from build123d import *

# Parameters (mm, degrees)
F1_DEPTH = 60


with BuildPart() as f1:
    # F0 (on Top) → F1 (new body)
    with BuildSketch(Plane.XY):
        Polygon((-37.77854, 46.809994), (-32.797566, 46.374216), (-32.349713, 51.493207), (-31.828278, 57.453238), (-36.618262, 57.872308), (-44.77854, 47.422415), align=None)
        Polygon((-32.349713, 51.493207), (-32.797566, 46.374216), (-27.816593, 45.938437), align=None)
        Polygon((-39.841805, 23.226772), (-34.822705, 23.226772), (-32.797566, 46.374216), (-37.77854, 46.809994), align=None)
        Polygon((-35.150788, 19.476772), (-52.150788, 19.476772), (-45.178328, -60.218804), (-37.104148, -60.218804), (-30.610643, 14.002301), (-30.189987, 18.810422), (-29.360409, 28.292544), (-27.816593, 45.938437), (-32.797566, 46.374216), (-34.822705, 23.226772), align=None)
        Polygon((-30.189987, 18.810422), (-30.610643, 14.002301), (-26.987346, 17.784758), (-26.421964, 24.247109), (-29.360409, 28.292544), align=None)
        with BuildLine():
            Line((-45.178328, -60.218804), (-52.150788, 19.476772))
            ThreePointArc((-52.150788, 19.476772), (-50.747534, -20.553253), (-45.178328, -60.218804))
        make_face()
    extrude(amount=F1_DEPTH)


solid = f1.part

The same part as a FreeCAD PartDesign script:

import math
import FreeCAD as App
import Part
import Sketcher
from FreeCAD import Vector

doc = App.newDocument("Part")
body = doc.addObject("PartDesign::Body", "Body")

# Sketch on XY plane
sketch1 = doc.addObject("Sketcher::SketchObject", "Sketch")
body.addObject(sketch1)
sketch1.AttachmentSupport = (doc.XY_Plane, [""])
sketch1.MapMode = "FlatFace"
sketch1.addGeometry([
    Part.LineSegment(Vector(-27.816593, 45.938437, 0), Vector(-32.349713, 51.493207, 0)),  # 0
    Part.LineSegment(Vector(-32.349713, 51.493207, 0), Vector(-31.828278, 57.453238, 0)),  # 1
    Part.LineSegment(Vector(-31.828278, 57.453238, 0), Vector(-36.618262, 57.872308, 0)),  # 2
    Part.LineSegment(Vector(-36.618262, 57.872308, 0), Vector(-44.77854, 47.422415, 0)),  # 3
    Part.LineSegment(Vector(-44.77854, 47.422415, 0), Vector(-37.77854, 46.809994, 0)),  # 4
    Part.LineSegment(Vector(-37.77854, 46.809994, 0), Vector(-39.841805, 23.226772, 0)),  # 5
    Part.LineSegment(Vector(-39.841805, 23.226772, 0), Vector(-34.822705, 23.226772, 0)),  # 6
    Part.LineSegment(Vector(-34.822705, 23.226772, 0), Vector(-35.150788, 19.476772, 0)),  # 7
    Part.LineSegment(Vector(-35.150788, 19.476772, 0), Vector(-52.150788, 19.476772, 0)),  # 8
    Part.ArcOfCircle(Part.Circle(Vector(331.442415, 12.884038, 0), Vector(0, 0, 1), 383.649853), math.radians(179.015367), math.radians(190.984634)),  # 9
    Part.LineSegment(Vector(-45.178328, -60.218804, 0), Vector(-37.104148, -60.218804, 0)),  # 10
    Part.LineSegment(Vector(-37.104148, -60.218804, 0), Vector(-30.610643, 14.002301, 0)),  # 11
    Part.LineSegment(Vector(-30.610643, 14.002301, 0), Vector(-26.987346, 17.784758, 0)),  # 12
    Part.LineSegment(Vector(-26.987346, 17.784758, 0), Vector(-26.421964, 24.247109, 0)),  # 13
    Part.LineSegment(Vector(-26.421964, 24.247109, 0), Vector(-29.360409, 28.292544, 0)),  # 14
    Part.LineSegment(Vector(-29.360409, 28.292544, 0), Vector(-27.816593, 45.938437, 0)),  # 15
], False)
sketch1.addConstraint([
    Sketcher.Constraint("Coincident", 0, 2, 1, 1),
    Sketcher.Constraint("Coincident", 1, 2, 2, 1),
    Sketcher.Constraint("Coincident", 2, 2, 3, 1),
    Sketcher.Constraint("Coincident", 3, 2, 4, 1),
    Sketcher.Constraint("Coincident", 4, 2, 5, 1),
    Sketcher.Constraint("Coincident", 5, 2, 6, 1),
    Sketcher.Constraint("Coincident", 6, 2, 7, 1),
    Sketcher.Constraint("Coincident", 7, 2, 8, 1),
    Sketcher.Constraint("Coincident", 8, 2, 9, 1),
    Sketcher.Constraint("Coincident", 9, 2, 10, 1),
    Sketcher.Constraint("Coincident", 10, 2, 11, 1),
    Sketcher.Constraint("Coincident", 11, 2, 12, 1),
    Sketcher.Constraint("Coincident", 12, 2, 13, 1),
    Sketcher.Constraint("Coincident", 13, 2, 14, 1),
    Sketcher.Constraint("Coincident", 14, 2, 15, 1),
    Sketcher.Constraint("Coincident", 15, 2, 0, 1),
    Sketcher.Constraint("Horizontal", 6),
    Sketcher.Constraint("Horizontal", 8),
    Sketcher.Constraint("Horizontal", 10),
    Sketcher.Constraint("DistanceX", 8, 2, 8, 1, 17.0),
    Sketcher.Constraint("Distance", 14, 5.0),
    Sketcher.Constraint("DistanceX", 3, 2, 4, 2, 7.0),
    Sketcher.Constraint("DistanceY", 7, 2, 6, 2, 3.75),
    Sketcher.Constraint("DistanceX", 6, 1, 6, 2, 5.0191),
    Sketcher.Constraint("Radius", 9, 383.649853),
    Sketcher.Constraint("DistanceX", 10, 1, 10, 2, 8.07418),
    Sketcher.Constraint("DistanceY", -1, 1, 11, 2, 14.002301),
    Sketcher.Constraint("DistanceY", 9, 3, 1, 2, 44.5692),
    Sketcher.Constraint("DistanceY", 0, 2, 2, 2, 6.379101),
    Sketcher.Constraint("DistanceY", 9, 2, 4, 2, 107.028798),
    Sketcher.Constraint("DistanceY", 15, 2, 1, 2, 11.514801),
    Sketcher.Constraint("Distance", 2, 4.808281),
    Sketcher.Constraint("Distance", 4, 7.026739),
    Sketcher.Constraint("Distance", 12, 5.237868),
    Sketcher.Constraint("DistanceX", 1, 2, -1, 1, 31.828278),
    Sketcher.Constraint("DistanceX", 3, 2, -1, 1, 44.77854),
    Sketcher.Constraint("DistanceX", 9, 2, -1, 1, 45.178328),
    Sketcher.Constraint("DistanceY", -1, 1, 12, 2, 17.784758),
    Sketcher.Constraint("DistanceY", -1, 1, 13, 2, 24.247109),
    Sketcher.Constraint("DistanceX", 14, 2, -1, 1, 29.360409),
    Sketcher.Constraint("DistanceX", 0, 2, 9, 3, 363.792128),
    Sketcher.Constraint("DistanceY", 9, 3, 0, 2, 38.609169),
    Sketcher.Constraint("DistanceX", 2, 2, 0, 2, 4.268549),
    Sketcher.Constraint("DistanceX", 5, 2, 0, 2, 7.492092),
    Sketcher.Constraint("DistanceX", 10, 2, 7, 2, 1.95336),
    Sketcher.Constraint("DistanceY", 11, 2, 7, 2, 5.474471),
    Sketcher.Constraint("DistanceX", 6, 2, 11, 2, 4.212062),
    Sketcher.Constraint("DistanceX", 12, 2, 13, 2, 0.565382),
    Sketcher.Constraint("DistanceX", 0, 2, 15, 2, 4.53312),
])
pad1 = doc.addObject("PartDesign::Pad", "Pad")
body.addObject(pad1)
pad1.Profile = sketch1
pad1.Length = 60

doc.recompute()
